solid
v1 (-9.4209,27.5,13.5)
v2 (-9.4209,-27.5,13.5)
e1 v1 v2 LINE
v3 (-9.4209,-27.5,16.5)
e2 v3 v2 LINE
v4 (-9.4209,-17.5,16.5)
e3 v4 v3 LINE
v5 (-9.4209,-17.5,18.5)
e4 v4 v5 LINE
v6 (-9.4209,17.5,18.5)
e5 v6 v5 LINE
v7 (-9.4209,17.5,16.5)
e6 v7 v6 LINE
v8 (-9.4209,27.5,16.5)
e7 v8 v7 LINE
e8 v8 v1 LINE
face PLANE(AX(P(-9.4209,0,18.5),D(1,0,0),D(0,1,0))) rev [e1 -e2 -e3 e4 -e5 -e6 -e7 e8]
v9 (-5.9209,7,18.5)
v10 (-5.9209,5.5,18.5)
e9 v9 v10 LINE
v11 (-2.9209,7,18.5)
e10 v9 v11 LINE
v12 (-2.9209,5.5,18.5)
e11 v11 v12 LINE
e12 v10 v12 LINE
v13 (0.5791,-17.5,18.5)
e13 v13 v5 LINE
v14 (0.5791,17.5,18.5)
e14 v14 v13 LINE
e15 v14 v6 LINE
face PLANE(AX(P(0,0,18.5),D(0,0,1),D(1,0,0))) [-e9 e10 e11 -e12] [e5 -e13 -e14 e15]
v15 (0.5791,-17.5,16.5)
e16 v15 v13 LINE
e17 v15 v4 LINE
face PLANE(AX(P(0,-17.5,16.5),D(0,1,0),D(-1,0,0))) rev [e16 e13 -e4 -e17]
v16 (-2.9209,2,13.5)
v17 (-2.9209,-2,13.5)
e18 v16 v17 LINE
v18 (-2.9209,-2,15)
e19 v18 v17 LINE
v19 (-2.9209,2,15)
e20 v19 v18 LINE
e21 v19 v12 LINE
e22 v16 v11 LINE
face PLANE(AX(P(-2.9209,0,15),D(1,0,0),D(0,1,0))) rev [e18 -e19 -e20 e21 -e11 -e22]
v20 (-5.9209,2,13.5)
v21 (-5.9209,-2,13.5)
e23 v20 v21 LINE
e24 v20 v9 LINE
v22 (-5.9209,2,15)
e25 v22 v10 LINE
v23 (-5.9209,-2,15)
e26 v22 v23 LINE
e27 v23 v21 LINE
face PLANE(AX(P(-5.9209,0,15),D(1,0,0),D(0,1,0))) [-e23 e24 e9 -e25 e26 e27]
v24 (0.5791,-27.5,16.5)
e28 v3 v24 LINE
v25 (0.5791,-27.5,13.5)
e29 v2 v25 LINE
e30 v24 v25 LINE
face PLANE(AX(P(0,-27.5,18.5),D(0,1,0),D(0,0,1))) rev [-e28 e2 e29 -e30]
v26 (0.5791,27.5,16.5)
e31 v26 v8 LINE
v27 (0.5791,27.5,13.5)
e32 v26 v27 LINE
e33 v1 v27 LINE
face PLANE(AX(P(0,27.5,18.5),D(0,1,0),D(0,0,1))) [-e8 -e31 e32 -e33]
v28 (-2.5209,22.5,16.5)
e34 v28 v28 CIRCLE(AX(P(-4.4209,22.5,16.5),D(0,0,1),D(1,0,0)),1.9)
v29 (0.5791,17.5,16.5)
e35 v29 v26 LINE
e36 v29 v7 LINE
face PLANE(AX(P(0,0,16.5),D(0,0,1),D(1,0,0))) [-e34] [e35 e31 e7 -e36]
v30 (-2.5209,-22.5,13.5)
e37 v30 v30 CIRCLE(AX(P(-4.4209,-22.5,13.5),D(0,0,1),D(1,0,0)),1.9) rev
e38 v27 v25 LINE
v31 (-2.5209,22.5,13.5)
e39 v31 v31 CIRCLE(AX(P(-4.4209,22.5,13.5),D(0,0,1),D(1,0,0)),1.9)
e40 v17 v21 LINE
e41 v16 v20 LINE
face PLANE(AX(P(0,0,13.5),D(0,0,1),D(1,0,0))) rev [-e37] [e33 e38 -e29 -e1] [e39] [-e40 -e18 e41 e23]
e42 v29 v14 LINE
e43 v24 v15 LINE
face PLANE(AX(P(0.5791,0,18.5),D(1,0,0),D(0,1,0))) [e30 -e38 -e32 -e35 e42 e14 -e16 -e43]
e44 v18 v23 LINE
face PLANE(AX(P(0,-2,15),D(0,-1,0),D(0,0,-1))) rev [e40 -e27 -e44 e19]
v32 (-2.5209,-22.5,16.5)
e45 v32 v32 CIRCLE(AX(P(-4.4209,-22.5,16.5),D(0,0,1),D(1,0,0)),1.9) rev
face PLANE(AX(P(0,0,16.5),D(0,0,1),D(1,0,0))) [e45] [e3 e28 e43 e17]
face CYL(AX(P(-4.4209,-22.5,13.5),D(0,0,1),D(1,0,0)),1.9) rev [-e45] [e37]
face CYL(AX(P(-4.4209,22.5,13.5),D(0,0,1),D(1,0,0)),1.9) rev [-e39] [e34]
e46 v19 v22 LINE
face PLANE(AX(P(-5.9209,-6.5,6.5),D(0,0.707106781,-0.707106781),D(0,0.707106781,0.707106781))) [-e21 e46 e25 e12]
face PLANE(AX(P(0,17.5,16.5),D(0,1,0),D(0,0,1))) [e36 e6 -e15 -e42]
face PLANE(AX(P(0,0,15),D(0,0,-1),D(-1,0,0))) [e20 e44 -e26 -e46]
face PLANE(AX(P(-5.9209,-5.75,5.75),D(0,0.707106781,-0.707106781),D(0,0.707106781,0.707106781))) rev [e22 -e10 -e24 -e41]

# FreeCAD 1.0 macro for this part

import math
import FreeCAD as App
import Part
import Sketcher

V = App.Vector


def add_polygon(sketch, points):
    """Adds a closed chain of lines whose ends are joined by coincident constraints."""
    first, n = sketch.GeometryCount, len(points)
    for a, b in zip(points, points[1:] + points[:1]):
        sketch.addGeometry(Part.LineSegment(App.Vector(*a, 0), App.Vector(*b, 0)), False)
    for i in range(n):
        sketch.addConstraint(Sketcher.Constraint("Coincident", first + i, 2, first + (i + 1) % n, 1))

doc = App.newDocument("Part")
body = doc.addObject("PartDesign::Body", "Body")

# Sketch on XY plane
sketch1 = body.newObject("Sketcher::SketchObject", "Sketch")
sketch1.AttachmentSupport = (doc.getObject("XY_Plane"), [""])
sketch1.MapMode = "FlatFace"
sketch1.AttachmentOffset = App.Placement(V(0, 0, 13.5), App.Rotation())
add_polygon(sketch1, [(-9, 28), (-9, -28), (1, -28), (1, 28)])  # lines 0-3
sketch1.addConstraint(Sketcher.Constraint("Vertical", 0))
sketch1.addConstraint(Sketcher.Constraint("Horizontal", 1))
sketch1.addConstraint(Sketcher.Constraint("Vertical", 2))
sketch1.addConstraint(Sketcher.Constraint("Horizontal", 3))
sketch1.addConstraint(Sketcher.Constraint("DistanceX", 1, 1, 1, 2, 10.0))
sketch1.addConstraint(Sketcher.Constraint("DistanceY", 0, 2, 0, 1, 55.0))
sketch1.addConstraint(Sketcher.Constraint("DistanceY", 0, 2, -1, 1, 27.5))
sketch1.addConstraint(Sketcher.Constraint("DistanceX", 0, 2, -1, 1, 9.4209))
pad1 = body.newObject("PartDesign::Pad", "Pad")
pad1.Profile = sketch1
pad1.Length = 5

# Sketch on XY plane
sketch2 = body.newObject("Sketcher::SketchObject", "Sketch001")
sketch2.AttachmentSupport = (doc.getObject("XY_Plane"), [""])
sketch2.MapMode = "FlatFace"
sketch2.AttachmentOffset = App.Placement(V(0, 0, 18.5), App.Rotation())
add_polygon(sketch2, [(-9, 28), (-9, 18), (1, 18), (1, 28)])  # lines 0-3
add_polygon(sketch2, [(-9, -18), (-9, -28), (1, -28), (1, -18)])  # lines 4-7
sketch2.addConstraint(Sketcher.Constraint("Vertical", 0))
sketch2.addConstraint(Sketcher.Constraint("Horizontal", 1))
sketch2.addConstraint(Sketcher.Constraint("Vertical", 2))
sketch2.addConstraint(Sketcher.Constraint("Horizontal", 3))
sketch2.addConstraint(Sketcher.Constraint("Vertical", 4))
sketch2.addConstraint(Sketcher.Constraint("Horizontal", 5))
sketch2.addConstraint(Sketcher.Constraint("Vertical", 6))
sketch2.addConstraint(Sketcher.Constraint("Horizontal", 7))
sketch2.addConstraint(Sketcher.Constraint("Symmetric", 3, 2, 4, 2, -1))
sketch2.addConstraint(Sketcher.Constraint("Symmetric", 1, 2, 6, 2, -1))
sketch2.addConstraint(Sketcher.Constraint("Equal", 7, 0))
sketch2.addConstraint(Sketcher.Constraint("DistanceX", 1, 1, 1, 2, 10.0))
sketch2.addConstraint(Sketcher.Constraint("DistanceY", 4, 2, 0, 2, 45.0))
sketch2.addConstraint(Sketcher.Constraint("DistanceX", 0, 2, -1, 1, 9.4209))
pocket1 = body.newObject("PartDesign::Pocket", "Pocket")
pocket1.Profile = sketch2
pocket1.Length = 2

# Sketch on XY plane
sketch3 = body.newObject("Sketcher::SketchObject", "Sketch002")
sketch3.AttachmentSupport = (doc.getObject("XY_Plane"), [""])
sketch3.MapMode = "FlatFace"
sketch3.AttachmentOffset = App.Placement(V(0, 0, 16.5), App.Rotation())
sketch3.addGeometry(Part.ArcOfCircle(Part.Circle(V(-4.4, 22.5, 0), V(0, 0, 1), 1.9), math.radians(0), math.radians(90)), False)
sketch3.addGeometry(Part.ArcOfCircle(Part.Circle(V(-4.4, 22.5, 0), V(0, 0, 1), 1.9), math.radians(90), math.radians(270)), False)
sketch3.addGeometry(Part.ArcOfCircle(Part.Circle(V(-4.4, 22.5, 0), V(0, 0, 1), 1.9), math.radians(-90), math.radians(0)), False)
sketch3.addGeometry(Part.ArcOfCircle(Part.Circle(V(-4.4, -22.5, 0), V(0, 0, 1), 1.9), math.radians(0), math.radians(90)), False)
sketch3.addGeometry(Part.ArcOfCircle(Part.Circle(V(-4.4, -22.5, 0), V(0, 0, 1), 1.9), math.radians(90), math.radians(270)), False)
sketch3.addGeometry(Part.ArcOfCircle(Part.Circle(V(-4.4, -22.5, 0), V(0, 0, 1), 1.9), math.radians(-90), math.radians(0)), False)
sketch3.addConstraint(Sketcher.Constraint("Tangent", 0, 2, 1, 1))
sketch3.addConstraint(Sketcher.Constraint("Tangent", 1, 2, 2, 1))
sketch3.addConstraint(Sketcher.Constraint("Tangent", 2, 2, 0, 1))
sketch3.addConstraint(Sketcher.Constraint("Tangent", 3, 2, 4, 1))
sketch3.addConstraint(Sketcher.Constraint("Tangent", 4, 2, 5, 1))
sketch3.addConstraint(Sketcher.Constraint("Tangent", 5, 2, 3, 1))
sketch3.addConstraint(Sketcher.Constraint("Equal", 2, 3))
sketch3.addConstraint(Sketcher.Constraint("Symmetric", 0, 3, 3, 3, -1))
sketch3.addConstraint(Sketcher.Constraint("Horizontal", 1, 3, 2, 2))
sketch3.addConstraint(Sketcher.Constraint("Horizontal", 4, 3, 5, 2))
sketch3.addConstraint(Sketcher.Constraint("Vertical", 5, 3, 0, 2))
sketch3.addConstraint(Sketcher.Constraint("Vertical", 0, 2, 1, 2))
sketch3.addConstraint(Sketcher.Constraint("Vertical", 1, 2, 3, 2))
sketch3.addConstraint(Sketcher.Constraint("Vertical", 3, 2, 4, 2))
sketch3.addConstraint(Sketcher.Constraint("Radius", 0, 1.9))
sketch3.addConstraint(Sketcher.Constraint("DistanceY", 3, 3, 0, 3, 45.0))
sketch3.addConstraint(Sketcher.Constraint("DistanceX", 0, 3, -1, 1, 4.4209))
pocket2 = body.newObject("PartDesign::Pocket", "Pocket001")
pocket2.Profile = sketch3
pocket2.Type = "ThroughAll"

# Sketch on XY plane
sketch4 = body.newObject("Sketcher::SketchObject", "Sketch003")
sketch4.AttachmentSupport = (doc.getObject("XY_Plane"), [""])
sketch4.MapMode = "FlatFace"
sketch4.AttachmentOffset = App.Placement(V(0, 0, 13.5), App.Rotation())
add_polygon(sketch4, [(-2.9, -2), (-5.9, -2), (-5.9, 2), (-2.9, 2)])  # lines 0-3
sketch4.addConstraint(Sketcher.Constraint("Horizontal", 0))
sketch4.addConstraint(Sketcher.Constraint("Vertical", 1))
sketch4.addConstraint(Sketcher.Constraint("Horizontal", 2))
sketch4.addConstraint(Sketcher.Constraint("Vertical", 3))
sketch4.addConstraint(Sketcher.Constraint("DistanceX", 0, 2, 0, 1, 3.0))
sketch4.addConstraint(Sketcher.Constraint("DistanceY", 1, 1, 1, 2, 4.0))
sketch4.addConstraint(Sketcher.Constraint("DistanceY", 0, 2, -1, 1, 2.0))
sketch4.addConstraint(Sketcher.Constraint("DistanceX", 0, 2, -1, 1, 5.9209))
pocket3 = body.newObject("PartDesign::Pocket", "Pocket002")
pocket3.Profile = sketch4
pocket3.Length = 1.5
pocket3.Reversed = True

# Sketch on YZ plane
sketch5 = body.newObject("Sketcher::SketchObject", "Sketch004")
sketch5.AttachmentSupport = (doc.getObject("YZ_Plane"), [""])
sketch5.MapMode = "FlatFace"
sketch5.AttachmentOffset = App.Placement(V(0, 0, -2.9209), App.Rotation())
add_polygon(sketch5, [(5.5, 18.5), (7, 18.5), (2, 13.5), (2, 15)])  # lines 0-3
sketch5.addConstraint(Sketcher.Constraint("Horizontal", 0))
sketch5.addConstraint(Sketcher.Constraint("Vertical", 2))
sketch5.addConstraint(Sketcher.Constraint("Parallel", 1, 3))
sketch5.addConstraint(Sketcher.Constraint("Equal", 0, 2))
sketch5.addConstraint(Sketcher.Constraint("DistanceX", 0, 1, 0, 2, 1.5))
sketch5.addConstraint(Sketcher.Constraint("DistanceX", -1, 1, 0, 2, 7.0))
sketch5.addConstraint(Sketcher.Constraint("DistanceX", -1, 1, 1, 2, 2.0))
sketch5.addConstraint(Sketcher.Constraint("DistanceY", -1, 1, 2, 2, 15.0))
pocket4 = body.newObject("PartDesign::Pocket", "Pocket003")
pocket4.Profile = sketch5
pocket4.Length = 3

doc.recompute()
